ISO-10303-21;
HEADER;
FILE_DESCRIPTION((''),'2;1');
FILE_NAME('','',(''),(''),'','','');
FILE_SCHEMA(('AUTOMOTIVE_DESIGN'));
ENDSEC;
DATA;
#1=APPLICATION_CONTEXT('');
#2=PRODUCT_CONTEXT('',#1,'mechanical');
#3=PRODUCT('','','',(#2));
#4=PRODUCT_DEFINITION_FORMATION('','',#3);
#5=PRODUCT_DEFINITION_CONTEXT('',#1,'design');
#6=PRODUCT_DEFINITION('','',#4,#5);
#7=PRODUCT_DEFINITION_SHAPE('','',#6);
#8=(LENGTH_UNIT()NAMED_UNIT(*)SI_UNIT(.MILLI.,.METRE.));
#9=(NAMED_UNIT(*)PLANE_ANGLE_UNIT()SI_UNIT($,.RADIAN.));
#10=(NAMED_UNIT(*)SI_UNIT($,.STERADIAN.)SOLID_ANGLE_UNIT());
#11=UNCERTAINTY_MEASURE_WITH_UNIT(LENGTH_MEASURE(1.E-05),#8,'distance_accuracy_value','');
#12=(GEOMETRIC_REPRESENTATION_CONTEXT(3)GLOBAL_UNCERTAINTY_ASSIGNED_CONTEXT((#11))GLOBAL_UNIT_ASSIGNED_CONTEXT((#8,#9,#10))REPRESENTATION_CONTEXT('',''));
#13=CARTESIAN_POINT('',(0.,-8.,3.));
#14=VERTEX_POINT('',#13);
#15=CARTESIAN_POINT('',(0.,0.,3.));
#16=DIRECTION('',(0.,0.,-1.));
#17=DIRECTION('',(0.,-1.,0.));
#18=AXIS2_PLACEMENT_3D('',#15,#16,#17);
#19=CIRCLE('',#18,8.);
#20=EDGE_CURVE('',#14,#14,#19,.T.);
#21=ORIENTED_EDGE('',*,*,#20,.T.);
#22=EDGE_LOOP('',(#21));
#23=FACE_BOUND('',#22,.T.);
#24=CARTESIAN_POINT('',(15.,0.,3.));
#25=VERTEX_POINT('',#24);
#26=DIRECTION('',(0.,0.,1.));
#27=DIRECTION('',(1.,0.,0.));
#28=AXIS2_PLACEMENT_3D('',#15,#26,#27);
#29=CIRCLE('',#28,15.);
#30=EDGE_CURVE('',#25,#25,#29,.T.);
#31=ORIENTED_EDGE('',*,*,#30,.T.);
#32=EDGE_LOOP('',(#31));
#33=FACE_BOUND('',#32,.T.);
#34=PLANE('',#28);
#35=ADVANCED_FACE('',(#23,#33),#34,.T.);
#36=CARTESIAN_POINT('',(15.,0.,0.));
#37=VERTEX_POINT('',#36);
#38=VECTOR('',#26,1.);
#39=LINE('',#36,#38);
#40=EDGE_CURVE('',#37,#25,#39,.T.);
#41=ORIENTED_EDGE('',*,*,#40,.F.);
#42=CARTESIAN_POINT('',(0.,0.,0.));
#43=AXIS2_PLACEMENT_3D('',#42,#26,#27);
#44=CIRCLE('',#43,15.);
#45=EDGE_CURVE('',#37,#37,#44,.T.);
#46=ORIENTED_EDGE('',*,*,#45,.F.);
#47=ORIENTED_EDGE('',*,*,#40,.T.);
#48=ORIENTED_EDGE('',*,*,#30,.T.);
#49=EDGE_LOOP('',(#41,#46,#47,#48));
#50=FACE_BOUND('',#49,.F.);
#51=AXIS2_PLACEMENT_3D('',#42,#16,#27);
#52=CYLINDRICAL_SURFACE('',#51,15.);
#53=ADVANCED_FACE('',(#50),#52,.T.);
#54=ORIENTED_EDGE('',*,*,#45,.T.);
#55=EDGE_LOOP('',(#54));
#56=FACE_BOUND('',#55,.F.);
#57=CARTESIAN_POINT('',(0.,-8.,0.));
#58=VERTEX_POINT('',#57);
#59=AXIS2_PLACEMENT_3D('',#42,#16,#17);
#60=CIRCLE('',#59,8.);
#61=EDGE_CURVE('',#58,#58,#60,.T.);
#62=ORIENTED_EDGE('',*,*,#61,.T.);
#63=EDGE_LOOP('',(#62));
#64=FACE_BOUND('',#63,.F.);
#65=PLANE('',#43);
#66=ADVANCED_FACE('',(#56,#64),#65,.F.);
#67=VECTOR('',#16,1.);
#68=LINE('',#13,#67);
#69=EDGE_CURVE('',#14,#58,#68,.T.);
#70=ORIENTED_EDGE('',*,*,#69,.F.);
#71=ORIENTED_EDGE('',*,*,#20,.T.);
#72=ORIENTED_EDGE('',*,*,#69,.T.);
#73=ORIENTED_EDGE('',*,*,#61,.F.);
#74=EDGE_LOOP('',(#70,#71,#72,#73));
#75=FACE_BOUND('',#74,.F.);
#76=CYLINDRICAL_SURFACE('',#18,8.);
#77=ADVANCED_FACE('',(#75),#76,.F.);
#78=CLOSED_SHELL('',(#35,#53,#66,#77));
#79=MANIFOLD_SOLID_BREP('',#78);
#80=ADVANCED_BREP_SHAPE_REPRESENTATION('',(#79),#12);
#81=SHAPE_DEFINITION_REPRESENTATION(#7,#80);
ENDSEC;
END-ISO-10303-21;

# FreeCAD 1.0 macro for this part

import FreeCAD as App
import Part
import Sketcher

V = App.Vector
Q = App.Units.Quantity

doc = App.newDocument("Part")
body = doc.addObject("PartDesign::Body", "Body")

sketch1 = body.newObject("Sketcher::SketchObject", "Sketch")
sketch1.AttachmentSupport = (doc.getObject("XY_Plane"), [""])
sketch1.MapMode = "FlatFace"
sketch1.addGeometry(Part.Circle(V(0, 0, 0), V(0, 0, 1), 15), False)
sketch1.addConstraint([
    Sketcher.Constraint("Coincident", 0, 3, -1, 1),
    Sketcher.Constraint("Diameter", 0, Q("30 mm")),
])
pad1 = body.newObject("PartDesign::Pad", "Pad")
pad1.Profile = sketch1
pad1.Length = 3

sketch2 = body.newObject("Sketcher::SketchObject", "Sketch001")
sketch2.AttachmentSupport = (doc.getObject("XY_Plane"), [""])
sketch2.MapMode = "FlatFace"
sketch2.AttachmentOffset = App.Placement(V(0, 0, 3), App.Rotation())
sketch2.addGeometry(Part.Circle(V(0, 0, 0), V(0, 0, 1), 8), False)
sketch2.addConstraint([
    Sketcher.Constraint("Coincident", 0, 3, -1, 1),
    Sketcher.Constraint("Diameter", 0, Q("16 mm")),
])
doc.recompute()
hole = body.newObject("PartDesign::Hole", "Hole")
hole.Profile = sketch2
hole.ThreadType = "None"
hole.Diameter = 16
hole.DepthType = "ThroughAll"

doc.recompute()
